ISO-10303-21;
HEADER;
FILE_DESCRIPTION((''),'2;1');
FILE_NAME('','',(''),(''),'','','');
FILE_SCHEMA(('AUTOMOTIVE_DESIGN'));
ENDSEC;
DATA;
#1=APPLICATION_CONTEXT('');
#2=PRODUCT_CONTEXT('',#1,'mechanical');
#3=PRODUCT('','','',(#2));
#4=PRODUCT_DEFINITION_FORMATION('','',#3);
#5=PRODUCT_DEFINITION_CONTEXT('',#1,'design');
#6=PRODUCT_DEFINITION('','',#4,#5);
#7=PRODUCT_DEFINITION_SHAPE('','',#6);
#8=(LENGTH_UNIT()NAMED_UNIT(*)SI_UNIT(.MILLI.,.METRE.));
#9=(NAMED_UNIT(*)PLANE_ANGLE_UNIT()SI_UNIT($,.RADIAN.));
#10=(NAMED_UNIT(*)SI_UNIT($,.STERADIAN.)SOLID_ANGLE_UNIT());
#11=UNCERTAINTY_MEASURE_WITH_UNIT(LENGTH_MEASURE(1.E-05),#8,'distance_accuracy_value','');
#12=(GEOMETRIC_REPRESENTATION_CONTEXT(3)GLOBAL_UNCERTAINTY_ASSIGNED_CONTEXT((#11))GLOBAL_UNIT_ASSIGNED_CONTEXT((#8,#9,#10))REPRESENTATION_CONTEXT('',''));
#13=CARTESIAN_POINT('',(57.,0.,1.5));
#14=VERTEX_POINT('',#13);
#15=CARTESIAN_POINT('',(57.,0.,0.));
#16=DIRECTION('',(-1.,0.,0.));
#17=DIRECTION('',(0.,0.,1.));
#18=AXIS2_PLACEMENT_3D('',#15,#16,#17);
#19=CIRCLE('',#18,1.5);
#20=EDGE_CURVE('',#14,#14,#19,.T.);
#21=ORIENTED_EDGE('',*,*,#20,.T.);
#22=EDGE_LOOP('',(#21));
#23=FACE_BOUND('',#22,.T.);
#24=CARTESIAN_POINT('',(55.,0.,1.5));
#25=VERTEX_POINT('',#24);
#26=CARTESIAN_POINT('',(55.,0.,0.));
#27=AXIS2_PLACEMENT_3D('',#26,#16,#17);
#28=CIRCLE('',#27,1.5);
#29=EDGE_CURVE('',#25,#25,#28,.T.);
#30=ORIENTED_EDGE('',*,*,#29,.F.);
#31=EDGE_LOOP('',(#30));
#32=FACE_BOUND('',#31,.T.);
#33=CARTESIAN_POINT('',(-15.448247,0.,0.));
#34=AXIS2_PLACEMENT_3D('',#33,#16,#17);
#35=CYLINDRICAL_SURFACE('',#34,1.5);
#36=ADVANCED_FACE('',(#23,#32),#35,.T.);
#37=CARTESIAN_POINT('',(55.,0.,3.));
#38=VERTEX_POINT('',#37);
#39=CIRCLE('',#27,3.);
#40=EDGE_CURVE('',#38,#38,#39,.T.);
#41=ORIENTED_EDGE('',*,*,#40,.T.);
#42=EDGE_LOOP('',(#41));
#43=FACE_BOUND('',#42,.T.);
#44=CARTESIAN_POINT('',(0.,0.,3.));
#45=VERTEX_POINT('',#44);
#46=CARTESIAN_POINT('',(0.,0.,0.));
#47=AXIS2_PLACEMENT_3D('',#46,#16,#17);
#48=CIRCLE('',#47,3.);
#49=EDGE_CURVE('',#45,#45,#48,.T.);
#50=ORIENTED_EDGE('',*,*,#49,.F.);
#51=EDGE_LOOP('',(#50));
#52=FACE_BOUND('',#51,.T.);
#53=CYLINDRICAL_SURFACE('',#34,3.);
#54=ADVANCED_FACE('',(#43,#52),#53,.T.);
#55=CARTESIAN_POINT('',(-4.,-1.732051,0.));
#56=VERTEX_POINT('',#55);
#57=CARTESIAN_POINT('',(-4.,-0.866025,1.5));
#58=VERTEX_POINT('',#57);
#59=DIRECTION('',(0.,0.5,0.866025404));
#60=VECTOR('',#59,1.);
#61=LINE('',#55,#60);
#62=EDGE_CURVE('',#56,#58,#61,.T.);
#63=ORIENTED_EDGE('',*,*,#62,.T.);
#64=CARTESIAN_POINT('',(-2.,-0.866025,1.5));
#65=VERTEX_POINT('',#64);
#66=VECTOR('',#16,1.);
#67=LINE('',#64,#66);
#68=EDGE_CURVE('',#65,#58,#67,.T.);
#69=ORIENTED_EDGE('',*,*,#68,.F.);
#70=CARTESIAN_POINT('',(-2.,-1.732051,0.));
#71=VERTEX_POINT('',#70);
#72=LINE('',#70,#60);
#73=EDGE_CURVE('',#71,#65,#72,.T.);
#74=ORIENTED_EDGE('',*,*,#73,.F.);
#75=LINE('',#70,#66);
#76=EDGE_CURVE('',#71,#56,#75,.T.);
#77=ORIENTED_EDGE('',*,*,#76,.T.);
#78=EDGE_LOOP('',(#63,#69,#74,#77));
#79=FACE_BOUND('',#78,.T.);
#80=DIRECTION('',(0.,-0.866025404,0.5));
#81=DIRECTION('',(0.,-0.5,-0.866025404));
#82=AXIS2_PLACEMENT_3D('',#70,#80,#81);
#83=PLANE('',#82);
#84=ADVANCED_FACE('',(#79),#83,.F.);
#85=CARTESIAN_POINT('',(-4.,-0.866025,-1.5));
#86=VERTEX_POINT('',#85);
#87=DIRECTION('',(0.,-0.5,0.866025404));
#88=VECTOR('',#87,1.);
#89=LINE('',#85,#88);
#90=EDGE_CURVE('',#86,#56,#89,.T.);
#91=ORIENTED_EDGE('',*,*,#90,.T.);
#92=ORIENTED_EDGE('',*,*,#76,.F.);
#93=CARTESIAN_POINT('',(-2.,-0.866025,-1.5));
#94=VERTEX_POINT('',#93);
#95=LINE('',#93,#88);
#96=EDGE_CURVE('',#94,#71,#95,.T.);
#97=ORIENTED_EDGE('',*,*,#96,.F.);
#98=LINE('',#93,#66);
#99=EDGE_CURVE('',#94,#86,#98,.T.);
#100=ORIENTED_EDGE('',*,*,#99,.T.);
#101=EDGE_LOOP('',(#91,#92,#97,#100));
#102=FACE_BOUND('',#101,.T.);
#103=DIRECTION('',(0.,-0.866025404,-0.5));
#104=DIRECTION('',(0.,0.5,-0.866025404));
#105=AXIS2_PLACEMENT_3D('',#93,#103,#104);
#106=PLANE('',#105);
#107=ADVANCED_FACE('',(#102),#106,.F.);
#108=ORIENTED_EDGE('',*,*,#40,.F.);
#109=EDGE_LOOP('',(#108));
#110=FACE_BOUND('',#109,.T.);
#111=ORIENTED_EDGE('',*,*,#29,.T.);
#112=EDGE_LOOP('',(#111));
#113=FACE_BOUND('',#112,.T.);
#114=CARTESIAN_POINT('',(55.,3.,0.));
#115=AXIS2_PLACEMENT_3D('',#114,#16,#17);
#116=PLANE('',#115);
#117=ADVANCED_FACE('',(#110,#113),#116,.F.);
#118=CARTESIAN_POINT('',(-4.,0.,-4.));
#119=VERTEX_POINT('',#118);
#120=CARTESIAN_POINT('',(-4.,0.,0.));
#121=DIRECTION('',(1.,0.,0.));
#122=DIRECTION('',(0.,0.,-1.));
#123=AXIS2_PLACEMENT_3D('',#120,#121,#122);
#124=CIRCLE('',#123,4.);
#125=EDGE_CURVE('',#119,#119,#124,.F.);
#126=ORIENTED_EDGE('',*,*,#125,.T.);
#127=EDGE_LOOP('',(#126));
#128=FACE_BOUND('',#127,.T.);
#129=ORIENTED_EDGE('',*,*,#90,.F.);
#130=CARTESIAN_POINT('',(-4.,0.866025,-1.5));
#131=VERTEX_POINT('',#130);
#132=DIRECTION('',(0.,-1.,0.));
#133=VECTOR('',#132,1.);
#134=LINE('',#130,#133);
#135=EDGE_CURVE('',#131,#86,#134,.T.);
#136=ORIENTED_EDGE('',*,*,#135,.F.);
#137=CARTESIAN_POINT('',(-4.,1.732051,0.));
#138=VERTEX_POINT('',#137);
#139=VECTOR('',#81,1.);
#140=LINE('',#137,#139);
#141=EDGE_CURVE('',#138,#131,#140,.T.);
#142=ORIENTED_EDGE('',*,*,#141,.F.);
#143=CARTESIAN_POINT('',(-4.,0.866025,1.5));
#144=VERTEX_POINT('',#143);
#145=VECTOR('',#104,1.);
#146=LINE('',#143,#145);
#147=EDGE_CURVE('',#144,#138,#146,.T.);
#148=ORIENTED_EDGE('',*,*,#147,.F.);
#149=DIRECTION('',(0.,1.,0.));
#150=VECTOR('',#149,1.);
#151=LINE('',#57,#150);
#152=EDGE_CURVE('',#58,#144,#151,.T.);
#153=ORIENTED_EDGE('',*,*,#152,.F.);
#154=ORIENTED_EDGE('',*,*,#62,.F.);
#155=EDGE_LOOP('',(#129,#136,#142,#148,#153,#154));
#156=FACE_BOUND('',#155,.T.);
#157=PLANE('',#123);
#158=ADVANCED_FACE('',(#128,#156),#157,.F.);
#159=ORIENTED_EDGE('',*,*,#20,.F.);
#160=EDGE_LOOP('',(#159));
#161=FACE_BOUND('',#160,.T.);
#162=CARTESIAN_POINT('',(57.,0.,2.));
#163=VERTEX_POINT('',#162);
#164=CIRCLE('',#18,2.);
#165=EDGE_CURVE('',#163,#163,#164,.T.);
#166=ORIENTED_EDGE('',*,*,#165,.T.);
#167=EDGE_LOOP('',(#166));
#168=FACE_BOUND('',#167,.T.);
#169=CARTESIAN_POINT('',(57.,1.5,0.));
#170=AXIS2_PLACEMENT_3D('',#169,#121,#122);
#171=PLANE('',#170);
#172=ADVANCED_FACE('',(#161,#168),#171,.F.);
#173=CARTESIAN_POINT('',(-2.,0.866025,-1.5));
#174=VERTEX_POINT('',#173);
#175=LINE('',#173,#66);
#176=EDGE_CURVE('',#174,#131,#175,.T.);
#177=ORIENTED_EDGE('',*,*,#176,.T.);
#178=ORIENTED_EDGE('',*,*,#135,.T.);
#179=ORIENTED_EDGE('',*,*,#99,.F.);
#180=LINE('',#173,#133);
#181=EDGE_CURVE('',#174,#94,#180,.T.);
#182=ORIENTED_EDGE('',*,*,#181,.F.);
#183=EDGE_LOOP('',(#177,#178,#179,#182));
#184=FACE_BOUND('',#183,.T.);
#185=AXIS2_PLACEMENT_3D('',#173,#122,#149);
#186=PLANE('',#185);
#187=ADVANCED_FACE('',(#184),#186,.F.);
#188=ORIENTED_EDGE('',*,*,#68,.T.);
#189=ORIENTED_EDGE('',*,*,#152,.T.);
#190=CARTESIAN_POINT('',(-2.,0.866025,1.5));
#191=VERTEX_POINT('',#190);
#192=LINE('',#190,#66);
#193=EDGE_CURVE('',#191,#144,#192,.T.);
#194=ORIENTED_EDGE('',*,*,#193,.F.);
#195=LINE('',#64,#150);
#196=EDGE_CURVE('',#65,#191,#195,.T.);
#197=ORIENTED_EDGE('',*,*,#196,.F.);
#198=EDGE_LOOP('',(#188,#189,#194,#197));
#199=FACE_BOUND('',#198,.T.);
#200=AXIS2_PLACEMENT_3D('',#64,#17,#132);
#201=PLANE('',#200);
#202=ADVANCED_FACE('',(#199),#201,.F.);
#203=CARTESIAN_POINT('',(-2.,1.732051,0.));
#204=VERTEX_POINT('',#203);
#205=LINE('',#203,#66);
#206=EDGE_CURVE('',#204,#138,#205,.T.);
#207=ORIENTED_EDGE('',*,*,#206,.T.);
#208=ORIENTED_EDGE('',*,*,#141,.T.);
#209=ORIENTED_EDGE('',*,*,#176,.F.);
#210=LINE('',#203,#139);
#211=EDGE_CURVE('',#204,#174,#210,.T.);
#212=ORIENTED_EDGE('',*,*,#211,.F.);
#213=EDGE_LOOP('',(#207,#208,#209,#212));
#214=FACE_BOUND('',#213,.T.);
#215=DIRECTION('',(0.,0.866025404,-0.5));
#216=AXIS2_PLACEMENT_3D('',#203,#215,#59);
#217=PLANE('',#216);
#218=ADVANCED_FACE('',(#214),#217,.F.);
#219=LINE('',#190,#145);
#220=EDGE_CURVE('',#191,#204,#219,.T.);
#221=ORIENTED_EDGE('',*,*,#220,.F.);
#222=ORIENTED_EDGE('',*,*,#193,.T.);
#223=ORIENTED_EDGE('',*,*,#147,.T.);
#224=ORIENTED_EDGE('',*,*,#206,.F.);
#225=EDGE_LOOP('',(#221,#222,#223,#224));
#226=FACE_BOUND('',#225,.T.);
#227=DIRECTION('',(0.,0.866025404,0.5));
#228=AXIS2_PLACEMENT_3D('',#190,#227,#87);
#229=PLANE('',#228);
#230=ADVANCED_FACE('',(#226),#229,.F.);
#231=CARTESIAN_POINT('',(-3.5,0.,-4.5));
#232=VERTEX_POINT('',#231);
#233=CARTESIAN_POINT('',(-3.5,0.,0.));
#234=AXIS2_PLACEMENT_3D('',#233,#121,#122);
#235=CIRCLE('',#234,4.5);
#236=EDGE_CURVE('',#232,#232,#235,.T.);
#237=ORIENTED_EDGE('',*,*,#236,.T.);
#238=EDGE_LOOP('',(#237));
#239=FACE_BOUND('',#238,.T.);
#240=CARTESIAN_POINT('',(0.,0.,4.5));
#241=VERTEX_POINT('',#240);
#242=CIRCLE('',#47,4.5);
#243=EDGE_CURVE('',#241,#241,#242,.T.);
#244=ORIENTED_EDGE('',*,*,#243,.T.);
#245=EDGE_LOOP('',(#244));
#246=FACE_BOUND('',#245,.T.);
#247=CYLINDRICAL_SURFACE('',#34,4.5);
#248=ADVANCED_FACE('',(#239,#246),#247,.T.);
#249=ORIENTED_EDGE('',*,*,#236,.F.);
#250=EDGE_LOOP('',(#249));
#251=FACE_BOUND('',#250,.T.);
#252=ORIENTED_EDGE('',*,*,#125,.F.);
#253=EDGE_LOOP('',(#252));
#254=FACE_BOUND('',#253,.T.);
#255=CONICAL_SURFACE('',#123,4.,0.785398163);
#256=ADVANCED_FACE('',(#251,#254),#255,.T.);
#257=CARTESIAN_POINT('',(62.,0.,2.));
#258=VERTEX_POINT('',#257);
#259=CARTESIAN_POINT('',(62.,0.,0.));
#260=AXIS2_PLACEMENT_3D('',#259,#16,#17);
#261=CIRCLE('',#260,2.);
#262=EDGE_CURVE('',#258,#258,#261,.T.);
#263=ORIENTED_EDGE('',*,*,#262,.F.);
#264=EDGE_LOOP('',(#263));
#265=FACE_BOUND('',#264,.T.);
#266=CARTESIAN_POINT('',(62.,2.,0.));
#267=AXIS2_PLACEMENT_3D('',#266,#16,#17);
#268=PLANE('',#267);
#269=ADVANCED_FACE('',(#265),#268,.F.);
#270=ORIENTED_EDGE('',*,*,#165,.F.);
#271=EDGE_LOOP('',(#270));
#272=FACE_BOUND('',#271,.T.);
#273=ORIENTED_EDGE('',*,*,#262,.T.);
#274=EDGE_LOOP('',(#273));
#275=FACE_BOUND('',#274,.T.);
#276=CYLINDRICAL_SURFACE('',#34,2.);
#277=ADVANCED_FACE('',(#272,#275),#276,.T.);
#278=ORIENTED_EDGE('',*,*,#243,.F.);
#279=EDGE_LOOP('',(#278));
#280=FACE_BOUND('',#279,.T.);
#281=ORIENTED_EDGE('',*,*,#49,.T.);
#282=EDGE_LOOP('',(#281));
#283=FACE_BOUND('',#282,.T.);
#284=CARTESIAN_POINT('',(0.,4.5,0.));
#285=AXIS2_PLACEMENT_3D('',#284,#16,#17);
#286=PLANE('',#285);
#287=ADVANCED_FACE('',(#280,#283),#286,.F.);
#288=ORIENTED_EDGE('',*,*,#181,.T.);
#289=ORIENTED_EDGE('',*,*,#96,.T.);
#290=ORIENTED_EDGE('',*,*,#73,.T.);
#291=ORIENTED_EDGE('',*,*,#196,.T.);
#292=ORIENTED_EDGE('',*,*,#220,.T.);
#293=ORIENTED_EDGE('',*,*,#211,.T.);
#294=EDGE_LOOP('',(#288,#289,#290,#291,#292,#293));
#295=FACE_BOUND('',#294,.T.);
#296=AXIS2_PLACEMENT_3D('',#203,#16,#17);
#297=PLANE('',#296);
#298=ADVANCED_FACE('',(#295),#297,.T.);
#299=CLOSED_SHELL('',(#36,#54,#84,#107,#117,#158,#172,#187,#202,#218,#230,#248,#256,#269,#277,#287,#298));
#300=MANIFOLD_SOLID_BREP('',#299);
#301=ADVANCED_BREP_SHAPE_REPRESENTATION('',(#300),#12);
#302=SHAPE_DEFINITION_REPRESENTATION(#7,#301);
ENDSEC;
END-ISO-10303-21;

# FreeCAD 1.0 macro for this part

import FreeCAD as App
import Part
import Sketcher
from FreeCAD import Vector
Q = App.Units.Quantity


def edges_at(feature, points):
    """Names of the edges that pass closest to the given points."""
    edges = feature.Shape.Edges
    near = lambda p: min(range(len(edges)), key=lambda i: edges[i].distToShape(Part.Vertex(*p))[0])
    return sorted({f"Edge{near(p) + 1}" for p in points})

doc = App.newDocument("Part")
body = doc.addObject("PartDesign::Body", "Body")

# Sketch on XY plane
sketch1 = body.newObject("Sketcher::SketchObject", "Sketch")
sketch1.AttachmentSupport = (doc.getObject("XY_Plane"), [""])
sketch1.MapMode = "FlatFace"
sketch1.addGeometry([
    Part.LineSegment(Vector(55, 3, 0), Vector(0, 3, 0)),  # 0
    Part.LineSegment(Vector(0, 3, 0), Vector(0, 4.5, 0)),  # 1
    Part.LineSegment(Vector(0, 4.5, 0), Vector(-4, 4.5, 0)),  # 2
    Part.LineSegment(Vector(-4, 4.5, 0), Vector(-4, 0, 0)),  # 3
    Part.LineSegment(Vector(-4, 0, 0), Vector(62, 0, 0)),  # 4
    Part.LineSegment(Vector(62, 0, 0), Vector(62, 2, 0)),  # 5
    Part.LineSegment(Vector(62, 2, 0), Vector(57, 2, 0)),  # 6
    Part.LineSegment(Vector(57, 2, 0), Vector(57, 1.5, 0)),  # 7
    Part.LineSegment(Vector(57, 1.5, 0), Vector(55, 1.5, 0)),  # 8
    Part.LineSegment(Vector(55, 1.5, 0), Vector(55, 3, 0)),  # 9
], False)
sketch1.addConstraint([
    Sketcher.Constraint("Coincident", 0, 2, 1, 1),
    Sketcher.Constraint("Coincident", 1, 2, 2, 1),
    Sketcher.Constraint("Coincident", 2, 2, 3, 1),
    Sketcher.Constraint("Coincident", 3, 2, 4, 1),
    Sketcher.Constraint("Coincident", 4, 2, 5, 1),
    Sketcher.Constraint("Coincident", 5, 2, 6, 1),
    Sketcher.Constraint("Coincident", 6, 2, 7, 1),
    Sketcher.Constraint("Coincident", 7, 2, 8, 1),
    Sketcher.Constraint("Coincident", 8, 2, 9, 1),
    Sketcher.Constraint("Coincident", 9, 2, 0, 1),
    Sketcher.Constraint("Horizontal", 0),
    Sketcher.Constraint("Vertical", 1),
    Sketcher.Constraint("Horizontal", 2),
    Sketcher.Constraint("Vertical", 3),
    Sketcher.Constraint("Horizontal", 4),
    Sketcher.Constraint("Vertical", 5),
    Sketcher.Constraint("Horizontal", 6),
    Sketcher.Constraint("Vertical", 7),
    Sketcher.Constraint("Horizontal", 8),
    Sketcher.Constraint("Vertical", 9),
    Sketcher.Constraint("PointOnObject", 0, 2, -2),
    Sketcher.Constraint("PointOnObject", 3, 2, -1),
    Sketcher.Constraint("Equal", 8, 5),
    Sketcher.Constraint("Equal", 1, 9),
    Sketcher.Constraint("DistanceX", 0, 2, 0, 1, Q("55 mm")),
    Sketcher.Constraint("DistanceX", 2, 2, 2, 1, Q("4 mm")),
    Sketcher.Constraint("DistanceX", 4, 1, 4, 2, Q("66 mm")),
    Sketcher.Constraint("DistanceX", 6, 2, 6, 1, Q("5 mm")),
    Sketcher.Constraint("DistanceY", 1, 1, 1, 2, Q("1.5 mm")),
    Sketcher.Constraint("DistanceY", 3, 2, 3, 1, Q("4.5 mm")),
])
revolution = body.newObject("PartDesign::Revolution", "Revolution")
revolution.Profile = sketch1
revolution.ReferenceAxis = (sketch1, ["H_Axis"])
revolution.Angle = 360
doc.recompute()

chamfer = body.newObject("PartDesign::Chamfer", "Chamfer")
chamfer.Base = (revolution, edges_at(revolution, [(-4, -4.5, 0)]))
chamfer.Size = 0.5

# Sketch on YZ plane
sketch2 = body.newObject("Sketcher::SketchObject", "Sketch001")
sketch2.AttachmentSupport = (doc.getObject("YZ_Plane"), [""])
sketch2.MapMode = "FlatFace"
sketch2.AttachmentOffset = App.Placement(Vector(0, 0, -4), App.Rotation())
sketch2.addGeometry([
    Part.LineSegment(Vector(1.7, 0, 0), Vector(0.9, -1.5, 0)),  # 0
    Part.LineSegment(Vector(0.9, -1.5, 0), Vector(-0.9, -1.5, 0)),  # 1
    Part.LineSegment(Vector(-0.9, -1.5, 0), Vector(-1.7, 0, 0)),  # 2
    Part.LineSegment(Vector(-1.7, 0, 0), Vector(-0.9, 1.5, 0)),  # 3
    Part.LineSegment(Vector(-0.9, 1.5, 0), Vector(0.9, 1.5, 0)),  # 4
    Part.LineSegment(Vector(0.9, 1.5, 0), Vector(1.7, 0, 0)),  # 5
], False)
sketch2.addConstraint([
    Sketcher.Constraint("Coincident", 0, 2, 1, 1),
    Sketcher.Constraint("Coincident", 1, 2, 2, 1),
    Sketcher.Constraint("Coincident", 2, 2, 3, 1),
    Sketcher.Constraint("Coincident", 3, 2, 4, 1),
    Sketcher.Constraint("Coincident", 4, 2, 5, 1),
    Sketcher.Constraint("Coincident", 5, 2, 0, 1),
    Sketcher.Constraint("Horizontal", 1),
    Sketcher.Constraint("Horizontal", 4),
    Sketcher.Constraint("Symmetric", 0, 2, 3, 2, -1, 1),
    Sketcher.Constraint("Symmetric", 2, 2, 5, 2, -1, 1),
    Sketcher.Constraint("PointOnObject", 2, 2, -1),
    Sketcher.Constraint("Parallel", 2, 5),
    Sketcher.Constraint("Vertical", 1, 2, 3, 2),
    Sketcher.Constraint("Angle", 0, Q("-120 deg")),
    Sketcher.Constraint("DistanceY", 1, 2, 3, 2, Q("3 mm")),
    Sketcher.Constraint("DistanceX", 1, 2, 1, 1, Q("1.732051 mm")),
])
pocket1 = body.newObject("PartDesign::Pocket", "Pocket")
pocket1.Profile = sketch2
pocket1.Length = 2
pocket1.Reversed = True

doc.recompute()
